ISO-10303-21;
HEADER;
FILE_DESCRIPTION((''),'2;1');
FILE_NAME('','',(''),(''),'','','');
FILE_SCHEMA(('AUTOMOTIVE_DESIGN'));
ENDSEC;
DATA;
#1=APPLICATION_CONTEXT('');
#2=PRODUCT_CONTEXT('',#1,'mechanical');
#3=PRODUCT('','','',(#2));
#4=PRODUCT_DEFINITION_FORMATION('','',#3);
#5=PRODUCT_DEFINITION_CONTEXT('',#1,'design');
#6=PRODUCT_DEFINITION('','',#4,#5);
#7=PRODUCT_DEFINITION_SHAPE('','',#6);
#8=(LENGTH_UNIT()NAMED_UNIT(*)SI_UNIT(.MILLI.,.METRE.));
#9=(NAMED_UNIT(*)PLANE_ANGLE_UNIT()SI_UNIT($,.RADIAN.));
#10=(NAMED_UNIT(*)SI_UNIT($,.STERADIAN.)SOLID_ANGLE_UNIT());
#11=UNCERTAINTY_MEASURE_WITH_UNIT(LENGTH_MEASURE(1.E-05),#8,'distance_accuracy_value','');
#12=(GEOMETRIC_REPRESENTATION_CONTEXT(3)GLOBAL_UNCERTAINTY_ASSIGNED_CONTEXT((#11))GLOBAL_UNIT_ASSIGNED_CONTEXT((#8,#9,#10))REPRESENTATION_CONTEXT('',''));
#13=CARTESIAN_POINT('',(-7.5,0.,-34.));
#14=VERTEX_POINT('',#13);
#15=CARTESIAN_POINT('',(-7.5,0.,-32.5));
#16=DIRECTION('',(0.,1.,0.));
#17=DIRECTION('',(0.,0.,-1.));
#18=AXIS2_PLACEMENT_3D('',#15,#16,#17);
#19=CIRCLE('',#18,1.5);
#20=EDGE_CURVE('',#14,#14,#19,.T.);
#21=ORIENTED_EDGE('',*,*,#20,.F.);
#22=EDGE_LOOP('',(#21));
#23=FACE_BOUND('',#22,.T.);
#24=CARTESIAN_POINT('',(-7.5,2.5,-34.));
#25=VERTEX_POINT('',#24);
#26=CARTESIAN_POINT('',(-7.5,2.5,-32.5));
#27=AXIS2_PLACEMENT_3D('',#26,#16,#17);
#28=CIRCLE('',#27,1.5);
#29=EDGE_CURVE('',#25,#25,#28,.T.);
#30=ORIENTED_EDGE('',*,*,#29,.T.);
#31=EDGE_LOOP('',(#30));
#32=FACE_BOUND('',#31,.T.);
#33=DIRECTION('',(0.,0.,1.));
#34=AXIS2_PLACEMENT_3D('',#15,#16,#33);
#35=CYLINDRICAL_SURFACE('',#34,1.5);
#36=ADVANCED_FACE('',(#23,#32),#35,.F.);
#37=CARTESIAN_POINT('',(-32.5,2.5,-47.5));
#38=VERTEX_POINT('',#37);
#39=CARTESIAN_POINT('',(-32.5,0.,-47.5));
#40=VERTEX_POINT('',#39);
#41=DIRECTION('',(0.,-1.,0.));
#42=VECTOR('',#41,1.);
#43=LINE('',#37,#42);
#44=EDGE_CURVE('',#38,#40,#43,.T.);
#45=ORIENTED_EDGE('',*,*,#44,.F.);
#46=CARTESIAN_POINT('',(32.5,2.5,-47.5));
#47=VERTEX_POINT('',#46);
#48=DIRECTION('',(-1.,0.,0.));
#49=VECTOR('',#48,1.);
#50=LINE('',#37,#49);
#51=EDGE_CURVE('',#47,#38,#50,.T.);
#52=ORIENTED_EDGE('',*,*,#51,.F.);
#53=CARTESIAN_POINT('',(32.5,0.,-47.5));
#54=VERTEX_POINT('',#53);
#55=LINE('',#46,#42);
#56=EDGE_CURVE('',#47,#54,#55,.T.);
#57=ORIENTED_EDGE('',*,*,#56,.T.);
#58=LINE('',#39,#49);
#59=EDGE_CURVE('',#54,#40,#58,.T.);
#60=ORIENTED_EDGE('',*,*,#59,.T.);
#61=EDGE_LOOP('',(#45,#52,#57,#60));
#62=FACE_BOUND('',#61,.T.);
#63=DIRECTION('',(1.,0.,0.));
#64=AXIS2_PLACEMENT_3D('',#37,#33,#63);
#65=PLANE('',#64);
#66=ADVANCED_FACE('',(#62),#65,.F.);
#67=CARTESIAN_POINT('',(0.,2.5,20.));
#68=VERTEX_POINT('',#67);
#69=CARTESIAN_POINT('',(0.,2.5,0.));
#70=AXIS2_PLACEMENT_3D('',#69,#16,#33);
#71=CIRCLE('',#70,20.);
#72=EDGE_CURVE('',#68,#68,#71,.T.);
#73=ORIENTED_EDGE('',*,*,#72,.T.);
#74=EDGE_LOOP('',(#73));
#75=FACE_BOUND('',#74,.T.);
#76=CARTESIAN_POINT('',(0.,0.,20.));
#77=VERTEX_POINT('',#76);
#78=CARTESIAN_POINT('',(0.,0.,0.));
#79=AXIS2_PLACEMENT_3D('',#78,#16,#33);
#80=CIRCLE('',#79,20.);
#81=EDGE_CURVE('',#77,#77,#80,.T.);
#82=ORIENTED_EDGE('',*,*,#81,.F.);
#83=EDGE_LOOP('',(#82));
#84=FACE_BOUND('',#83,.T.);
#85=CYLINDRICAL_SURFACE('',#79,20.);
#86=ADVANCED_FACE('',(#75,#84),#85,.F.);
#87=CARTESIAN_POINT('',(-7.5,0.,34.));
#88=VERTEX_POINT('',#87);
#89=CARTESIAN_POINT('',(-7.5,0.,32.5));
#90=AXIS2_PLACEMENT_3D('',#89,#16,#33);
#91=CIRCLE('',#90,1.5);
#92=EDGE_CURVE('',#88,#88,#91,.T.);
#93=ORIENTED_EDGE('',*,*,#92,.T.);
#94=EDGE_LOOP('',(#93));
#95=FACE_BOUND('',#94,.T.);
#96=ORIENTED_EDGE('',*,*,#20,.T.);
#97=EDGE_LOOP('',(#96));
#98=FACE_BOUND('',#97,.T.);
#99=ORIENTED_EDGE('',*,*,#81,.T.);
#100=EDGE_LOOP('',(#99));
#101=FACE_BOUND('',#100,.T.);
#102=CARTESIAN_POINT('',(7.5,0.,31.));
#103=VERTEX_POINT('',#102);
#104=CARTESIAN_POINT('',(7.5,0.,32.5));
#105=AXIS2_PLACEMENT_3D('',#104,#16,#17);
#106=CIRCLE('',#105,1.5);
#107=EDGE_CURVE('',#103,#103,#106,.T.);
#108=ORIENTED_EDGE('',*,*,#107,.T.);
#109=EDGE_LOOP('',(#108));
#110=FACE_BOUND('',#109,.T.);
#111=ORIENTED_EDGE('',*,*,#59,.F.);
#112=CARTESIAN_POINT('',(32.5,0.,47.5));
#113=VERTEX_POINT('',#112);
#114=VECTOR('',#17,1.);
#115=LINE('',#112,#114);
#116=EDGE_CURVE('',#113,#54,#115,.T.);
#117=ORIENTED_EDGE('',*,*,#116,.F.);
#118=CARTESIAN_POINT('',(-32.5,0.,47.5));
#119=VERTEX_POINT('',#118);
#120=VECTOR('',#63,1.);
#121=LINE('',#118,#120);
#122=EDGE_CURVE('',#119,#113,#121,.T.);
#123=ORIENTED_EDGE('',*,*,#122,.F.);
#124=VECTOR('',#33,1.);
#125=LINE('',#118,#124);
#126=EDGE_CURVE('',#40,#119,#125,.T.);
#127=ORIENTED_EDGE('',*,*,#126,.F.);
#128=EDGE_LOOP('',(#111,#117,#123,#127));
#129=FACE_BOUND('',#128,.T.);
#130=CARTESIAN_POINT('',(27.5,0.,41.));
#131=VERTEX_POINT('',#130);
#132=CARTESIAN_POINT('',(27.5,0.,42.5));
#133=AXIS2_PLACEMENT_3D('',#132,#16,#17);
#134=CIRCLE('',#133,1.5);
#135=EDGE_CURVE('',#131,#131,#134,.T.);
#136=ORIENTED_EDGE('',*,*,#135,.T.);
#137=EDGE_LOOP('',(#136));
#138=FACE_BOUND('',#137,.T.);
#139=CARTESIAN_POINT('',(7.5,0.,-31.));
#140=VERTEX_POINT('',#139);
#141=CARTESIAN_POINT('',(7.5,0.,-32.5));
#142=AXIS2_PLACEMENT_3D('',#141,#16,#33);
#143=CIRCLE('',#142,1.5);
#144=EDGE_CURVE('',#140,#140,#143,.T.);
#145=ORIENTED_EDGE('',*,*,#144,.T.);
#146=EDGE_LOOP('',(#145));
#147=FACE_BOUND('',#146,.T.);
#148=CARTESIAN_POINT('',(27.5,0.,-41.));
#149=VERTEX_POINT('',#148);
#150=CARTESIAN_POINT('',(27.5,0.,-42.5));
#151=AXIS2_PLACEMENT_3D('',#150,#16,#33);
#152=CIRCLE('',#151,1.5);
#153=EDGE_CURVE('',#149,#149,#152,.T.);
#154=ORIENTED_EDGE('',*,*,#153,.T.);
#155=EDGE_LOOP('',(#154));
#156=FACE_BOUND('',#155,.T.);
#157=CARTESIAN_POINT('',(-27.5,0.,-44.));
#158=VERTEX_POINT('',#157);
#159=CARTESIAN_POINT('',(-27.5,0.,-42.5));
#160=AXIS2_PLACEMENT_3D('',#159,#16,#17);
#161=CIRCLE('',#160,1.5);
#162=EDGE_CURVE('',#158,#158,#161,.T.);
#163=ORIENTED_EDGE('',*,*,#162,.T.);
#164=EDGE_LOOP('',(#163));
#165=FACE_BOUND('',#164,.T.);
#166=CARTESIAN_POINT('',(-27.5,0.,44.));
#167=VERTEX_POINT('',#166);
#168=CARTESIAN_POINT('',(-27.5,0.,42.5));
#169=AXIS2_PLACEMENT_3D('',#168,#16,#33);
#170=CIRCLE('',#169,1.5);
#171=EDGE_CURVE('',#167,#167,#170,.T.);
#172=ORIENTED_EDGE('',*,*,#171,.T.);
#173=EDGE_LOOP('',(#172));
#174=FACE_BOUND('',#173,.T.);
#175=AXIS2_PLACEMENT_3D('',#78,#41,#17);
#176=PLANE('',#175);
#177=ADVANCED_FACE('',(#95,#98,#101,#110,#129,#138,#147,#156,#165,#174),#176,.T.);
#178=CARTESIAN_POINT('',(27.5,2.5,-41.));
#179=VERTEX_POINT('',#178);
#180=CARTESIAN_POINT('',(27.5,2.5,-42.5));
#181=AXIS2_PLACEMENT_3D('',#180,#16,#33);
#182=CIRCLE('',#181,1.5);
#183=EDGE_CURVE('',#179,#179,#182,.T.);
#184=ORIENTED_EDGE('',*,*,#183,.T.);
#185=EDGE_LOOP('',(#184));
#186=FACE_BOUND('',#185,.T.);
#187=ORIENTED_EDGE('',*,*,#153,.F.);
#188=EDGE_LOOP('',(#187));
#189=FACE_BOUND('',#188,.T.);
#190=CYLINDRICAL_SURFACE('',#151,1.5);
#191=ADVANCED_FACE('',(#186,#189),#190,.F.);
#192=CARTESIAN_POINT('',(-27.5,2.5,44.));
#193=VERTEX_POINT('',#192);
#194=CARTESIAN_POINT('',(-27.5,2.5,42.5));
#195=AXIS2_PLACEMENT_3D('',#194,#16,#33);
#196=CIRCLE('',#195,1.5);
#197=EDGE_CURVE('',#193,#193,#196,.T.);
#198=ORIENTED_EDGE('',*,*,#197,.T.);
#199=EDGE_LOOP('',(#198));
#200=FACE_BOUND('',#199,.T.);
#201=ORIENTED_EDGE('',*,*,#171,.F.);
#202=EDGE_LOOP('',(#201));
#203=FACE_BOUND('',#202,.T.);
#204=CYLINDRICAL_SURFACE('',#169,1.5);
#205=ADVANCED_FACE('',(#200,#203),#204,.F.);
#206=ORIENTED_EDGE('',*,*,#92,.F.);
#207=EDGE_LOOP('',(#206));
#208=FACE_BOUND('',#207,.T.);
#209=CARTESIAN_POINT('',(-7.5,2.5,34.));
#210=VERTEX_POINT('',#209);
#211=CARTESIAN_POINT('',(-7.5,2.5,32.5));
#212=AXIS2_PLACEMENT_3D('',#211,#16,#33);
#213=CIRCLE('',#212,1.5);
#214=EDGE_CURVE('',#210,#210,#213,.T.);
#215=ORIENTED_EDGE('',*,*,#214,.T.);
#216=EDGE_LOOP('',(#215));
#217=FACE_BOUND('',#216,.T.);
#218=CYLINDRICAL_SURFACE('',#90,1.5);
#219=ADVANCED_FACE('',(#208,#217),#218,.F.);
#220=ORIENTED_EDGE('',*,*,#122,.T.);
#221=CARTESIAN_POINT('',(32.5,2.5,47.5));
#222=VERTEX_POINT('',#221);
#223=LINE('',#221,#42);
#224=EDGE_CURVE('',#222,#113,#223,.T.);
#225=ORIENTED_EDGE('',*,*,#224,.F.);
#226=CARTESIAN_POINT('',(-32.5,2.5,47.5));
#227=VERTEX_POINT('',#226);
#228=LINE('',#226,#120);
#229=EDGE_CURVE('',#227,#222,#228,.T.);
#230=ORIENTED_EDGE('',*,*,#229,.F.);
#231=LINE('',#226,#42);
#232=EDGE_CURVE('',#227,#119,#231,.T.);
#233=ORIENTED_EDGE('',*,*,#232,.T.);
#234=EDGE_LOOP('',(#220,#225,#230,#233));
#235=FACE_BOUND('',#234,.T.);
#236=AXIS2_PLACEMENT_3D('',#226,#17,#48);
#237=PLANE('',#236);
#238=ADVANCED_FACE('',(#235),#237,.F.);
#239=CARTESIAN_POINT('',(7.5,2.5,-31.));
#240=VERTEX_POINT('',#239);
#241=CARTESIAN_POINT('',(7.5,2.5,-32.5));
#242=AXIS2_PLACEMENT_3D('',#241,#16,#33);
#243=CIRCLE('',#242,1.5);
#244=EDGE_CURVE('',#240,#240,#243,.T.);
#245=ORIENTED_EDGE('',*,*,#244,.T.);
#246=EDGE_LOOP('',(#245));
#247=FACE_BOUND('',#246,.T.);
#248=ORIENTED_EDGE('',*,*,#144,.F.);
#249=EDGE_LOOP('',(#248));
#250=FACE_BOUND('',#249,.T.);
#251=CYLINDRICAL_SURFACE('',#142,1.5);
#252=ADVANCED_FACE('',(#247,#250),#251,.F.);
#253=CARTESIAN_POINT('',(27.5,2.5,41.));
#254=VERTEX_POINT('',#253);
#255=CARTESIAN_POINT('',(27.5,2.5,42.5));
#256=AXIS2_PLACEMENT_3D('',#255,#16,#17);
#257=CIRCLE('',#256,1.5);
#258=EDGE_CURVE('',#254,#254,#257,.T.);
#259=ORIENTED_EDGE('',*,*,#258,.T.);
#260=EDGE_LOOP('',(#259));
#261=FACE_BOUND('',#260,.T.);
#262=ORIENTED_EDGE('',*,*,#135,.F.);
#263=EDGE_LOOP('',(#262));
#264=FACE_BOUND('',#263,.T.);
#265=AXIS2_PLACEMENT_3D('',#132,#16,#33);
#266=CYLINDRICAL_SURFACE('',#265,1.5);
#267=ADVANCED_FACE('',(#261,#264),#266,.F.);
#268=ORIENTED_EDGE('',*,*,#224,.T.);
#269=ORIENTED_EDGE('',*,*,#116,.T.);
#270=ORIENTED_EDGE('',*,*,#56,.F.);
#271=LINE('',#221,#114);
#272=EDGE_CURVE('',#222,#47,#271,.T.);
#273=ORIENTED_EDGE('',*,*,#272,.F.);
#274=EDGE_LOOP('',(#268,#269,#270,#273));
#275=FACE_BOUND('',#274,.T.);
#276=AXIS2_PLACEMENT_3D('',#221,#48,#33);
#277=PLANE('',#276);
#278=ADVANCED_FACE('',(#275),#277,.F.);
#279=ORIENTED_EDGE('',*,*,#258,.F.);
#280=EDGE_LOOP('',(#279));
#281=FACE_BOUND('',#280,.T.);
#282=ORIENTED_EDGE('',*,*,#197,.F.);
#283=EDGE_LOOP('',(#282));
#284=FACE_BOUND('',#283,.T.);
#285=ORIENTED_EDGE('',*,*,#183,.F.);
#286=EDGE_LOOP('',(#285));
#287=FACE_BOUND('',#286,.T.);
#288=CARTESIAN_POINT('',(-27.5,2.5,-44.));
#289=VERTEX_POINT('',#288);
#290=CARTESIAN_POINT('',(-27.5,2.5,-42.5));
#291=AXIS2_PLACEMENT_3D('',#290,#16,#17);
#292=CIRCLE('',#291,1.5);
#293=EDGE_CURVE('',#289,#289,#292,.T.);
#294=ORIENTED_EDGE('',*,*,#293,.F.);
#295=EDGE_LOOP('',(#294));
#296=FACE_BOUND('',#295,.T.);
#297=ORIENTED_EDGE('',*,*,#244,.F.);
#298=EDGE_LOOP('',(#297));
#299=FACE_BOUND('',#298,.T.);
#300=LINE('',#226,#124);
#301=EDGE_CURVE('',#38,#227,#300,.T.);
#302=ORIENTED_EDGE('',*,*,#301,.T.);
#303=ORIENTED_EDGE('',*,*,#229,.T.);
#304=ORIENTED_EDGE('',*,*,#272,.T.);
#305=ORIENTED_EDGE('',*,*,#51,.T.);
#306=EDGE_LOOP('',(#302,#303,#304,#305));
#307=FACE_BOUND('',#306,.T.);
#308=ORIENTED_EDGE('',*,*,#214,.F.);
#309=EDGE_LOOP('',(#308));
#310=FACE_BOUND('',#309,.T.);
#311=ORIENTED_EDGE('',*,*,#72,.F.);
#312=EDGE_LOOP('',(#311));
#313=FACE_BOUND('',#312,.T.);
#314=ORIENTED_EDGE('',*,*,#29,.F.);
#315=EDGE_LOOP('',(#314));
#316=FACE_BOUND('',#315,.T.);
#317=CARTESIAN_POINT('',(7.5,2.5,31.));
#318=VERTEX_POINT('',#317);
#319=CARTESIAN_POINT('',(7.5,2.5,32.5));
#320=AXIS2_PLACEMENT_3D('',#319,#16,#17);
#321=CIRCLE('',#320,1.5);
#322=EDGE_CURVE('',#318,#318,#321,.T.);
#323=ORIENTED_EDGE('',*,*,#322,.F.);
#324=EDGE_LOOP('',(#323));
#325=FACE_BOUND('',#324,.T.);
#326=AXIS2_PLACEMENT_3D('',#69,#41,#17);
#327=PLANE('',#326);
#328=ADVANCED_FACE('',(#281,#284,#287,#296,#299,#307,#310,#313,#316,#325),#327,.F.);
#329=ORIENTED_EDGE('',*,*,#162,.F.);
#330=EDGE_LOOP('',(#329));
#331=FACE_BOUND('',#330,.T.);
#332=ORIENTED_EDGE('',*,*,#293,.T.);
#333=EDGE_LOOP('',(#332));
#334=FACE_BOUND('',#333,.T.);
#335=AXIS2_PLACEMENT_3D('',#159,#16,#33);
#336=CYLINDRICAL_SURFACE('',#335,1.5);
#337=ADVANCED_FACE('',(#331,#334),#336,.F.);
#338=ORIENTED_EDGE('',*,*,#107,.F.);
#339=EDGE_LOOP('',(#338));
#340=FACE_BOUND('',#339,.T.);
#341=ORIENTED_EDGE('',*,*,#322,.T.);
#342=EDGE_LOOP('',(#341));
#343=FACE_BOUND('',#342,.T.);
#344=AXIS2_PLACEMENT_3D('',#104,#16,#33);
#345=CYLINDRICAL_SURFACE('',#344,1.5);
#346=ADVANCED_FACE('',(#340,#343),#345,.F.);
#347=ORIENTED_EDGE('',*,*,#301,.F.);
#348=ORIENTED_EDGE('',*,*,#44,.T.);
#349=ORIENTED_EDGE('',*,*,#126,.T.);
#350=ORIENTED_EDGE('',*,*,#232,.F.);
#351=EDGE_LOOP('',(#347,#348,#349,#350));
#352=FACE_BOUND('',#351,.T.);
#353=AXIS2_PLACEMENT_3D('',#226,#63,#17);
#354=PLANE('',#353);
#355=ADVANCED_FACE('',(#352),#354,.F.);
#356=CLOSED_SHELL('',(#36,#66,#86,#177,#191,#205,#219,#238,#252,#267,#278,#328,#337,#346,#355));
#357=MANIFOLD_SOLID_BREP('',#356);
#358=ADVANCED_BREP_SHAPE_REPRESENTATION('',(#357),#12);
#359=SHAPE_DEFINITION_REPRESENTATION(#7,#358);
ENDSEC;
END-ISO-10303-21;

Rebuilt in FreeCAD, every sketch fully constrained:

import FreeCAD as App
import Part
import Sketcher
Q = App.Units.Quantity

doc = App.newDocument("Part")
body = doc.addObject("PartDesign::Body", "Body")

# Sketch on XZ plane
sketch1 = body.newObject("Sketcher::SketchObject", "Sketch")
sketch1.AttachmentSupport = (doc.getObject("XZ_Plane"), [""])
sketch1.MapMode = "FlatFace"
sketch1.addGeometry([
    Part.LineSegment(App.Vector(-32, -48, 0), App.Vector(-32, 48, 0)),
    Part.LineSegment(App.Vector(-32, 48, 0), App.Vector(32, 48, 0)),
    Part.LineSegment(App.Vector(32, 48, 0), App.Vector(32, -48, 0)),
    Part.LineSegment(App.Vector(32, -48, 0), App.Vector(-32, -48, 0)),
], False)
sketch1.addConstraint([
    Sketcher.Constraint("Coincident", 0, 2, 1, 1),
    Sketcher.Constraint("Coincident", 1, 2, 2, 1),
    Sketcher.Constraint("Coincident", 2, 2, 3, 1),
    Sketcher.Constraint("Coincident", 3, 2, 0, 1),
    Sketcher.Constraint("Vertical", 0),
    Sketcher.Constraint("Horizontal", 1),
    Sketcher.Constraint("Vertical", 2),
    Sketcher.Constraint("Horizontal", 3),
    Sketcher.Constraint("Symmetric", 0, 2, 2, 2, -1, 1),
    Sketcher.Constraint("DistanceX", 1, 1, 1, 2, Q("65 mm")),
    Sketcher.Constraint("DistanceY", 0, 1, 0, 2, Q("95 mm")),
])
pad1 = body.newObject("PartDesign::Pad", "Pad")
pad1.Profile = sketch1
pad1.Length = 2.5
pad1.Reversed = True

# Sketch on XZ plane
sketch2 = body.newObject("Sketcher::SketchObject", "Sketch001")
sketch2.AttachmentSupport = (doc.getObject("XZ_Plane"), [""])
sketch2.MapMode = "FlatFace"
sketch2.AttachmentOffset = App.Placement(App.Vector(0, 0, -2.5), App.Rotation())
sketch2.addGeometry([
    Part.Circle(App.Vector(27.5, -42.5, 0), App.Vector(0, 0, 1), 1.5),  # 0
    Part.Circle(App.Vector(7.5, -32.5, 0), App.Vector(0, 0, 1), 1.5),  # 1
    Part.Circle(App.Vector(7.5, 32.5, 0), App.Vector(0, 0, 1), 1.5),  # 2
    Part.Circle(App.Vector(27.5, 42.5, 0), App.Vector(0, 0, 1), 1.5),  # 3
    Part.Circle(App.Vector(-27.5, -42.5, 0), App.Vector(0, 0, 1), 1.5),  # 4
    Part.Circle(App.Vector(-7.5, -32.5, 0), App.Vector(0, 0, 1), 1.5),  # 5
    Part.Circle(App.Vector(-27.5, 42.5, 0), App.Vector(0, 0, 1), 1.5),  # 6
    Part.Circle(App.Vector(-7.5, 32.5, 0), App.Vector(0, 0, 1), 1.5),  # 7
], False)
sketch2.addConstraint([
    Sketcher.Constraint("Equal", 0, 1),
    Sketcher.Constraint("Equal", 1, 2),
    Sketcher.Constraint("Equal", 2, 3),
    Sketcher.Constraint("Equal", 3, 4),
    Sketcher.Constraint("Equal", 4, 5),
    Sketcher.Constraint("Equal", 5, 6),
    Sketcher.Constraint("Equal", 6, 7),
    Sketcher.Constraint("Symmetric", 3, 3, 4, 3, -1, 1),
    Sketcher.Constraint("Symmetric", 2, 3, 5, 3, -1, 1),
    Sketcher.Constraint("Symmetric", 0, 3, 6, 3, -1, 1),
    Sketcher.Constraint("Symmetric", 1, 3, 7, 3, -1, 1),
    Sketcher.Constraint("Symmetric", 0, 3, 4, 3, -2),
    Sketcher.Constraint("Symmetric", 1, 3, 5, 3, -2),
    Sketcher.Constraint("Diameter", 0, Q("3 mm")),
    Sketcher.Constraint("DistanceX", 1, 3, 0, 3, Q("20 mm")),
    Sketcher.Constraint("DistanceY", 0, 3, 1, 3, Q("10 mm")),
    Sketcher.Constraint("DistanceY", 1, 3, 2, 3, Q("65 mm")),
    Sketcher.Constraint("DistanceX", 4, 3, 1, 3, Q("35 mm")),
])
pocket1 = body.newObject("PartDesign::Pocket", "Pocket")
pocket1.Profile = sketch2
pocket1.Type = "ThroughAll"
pocket1.Reversed = True

# Sketch on XZ plane
sketch3 = body.newObject("Sketcher::SketchObject", "Sketch002")
sketch3.AttachmentSupport = (doc.getObject("XZ_Plane"), [""])
sketch3.MapMode = "FlatFace"
sketch3.AttachmentOffset = App.Placement(App.Vector(0, 0, -2.5), App.Rotation())
sketch3.addGeometry(Part.Circle(App.Vector(0, 0, 0), App.Vector(0, 0, 1), 20), False)
sketch3.addConstraint([
    Sketcher.Constraint("Coincident", 0, 3, -1, 1),
    Sketcher.Constraint("Diameter", 0, Q("40 mm")),
])
pocket2 = body.newObject("PartDesign::Pocket", "Pocket001")
pocket2.Profile = sketch3
pocket2.Type = "ThroughAll"
pocket2.Reversed = True

doc.recompute()
